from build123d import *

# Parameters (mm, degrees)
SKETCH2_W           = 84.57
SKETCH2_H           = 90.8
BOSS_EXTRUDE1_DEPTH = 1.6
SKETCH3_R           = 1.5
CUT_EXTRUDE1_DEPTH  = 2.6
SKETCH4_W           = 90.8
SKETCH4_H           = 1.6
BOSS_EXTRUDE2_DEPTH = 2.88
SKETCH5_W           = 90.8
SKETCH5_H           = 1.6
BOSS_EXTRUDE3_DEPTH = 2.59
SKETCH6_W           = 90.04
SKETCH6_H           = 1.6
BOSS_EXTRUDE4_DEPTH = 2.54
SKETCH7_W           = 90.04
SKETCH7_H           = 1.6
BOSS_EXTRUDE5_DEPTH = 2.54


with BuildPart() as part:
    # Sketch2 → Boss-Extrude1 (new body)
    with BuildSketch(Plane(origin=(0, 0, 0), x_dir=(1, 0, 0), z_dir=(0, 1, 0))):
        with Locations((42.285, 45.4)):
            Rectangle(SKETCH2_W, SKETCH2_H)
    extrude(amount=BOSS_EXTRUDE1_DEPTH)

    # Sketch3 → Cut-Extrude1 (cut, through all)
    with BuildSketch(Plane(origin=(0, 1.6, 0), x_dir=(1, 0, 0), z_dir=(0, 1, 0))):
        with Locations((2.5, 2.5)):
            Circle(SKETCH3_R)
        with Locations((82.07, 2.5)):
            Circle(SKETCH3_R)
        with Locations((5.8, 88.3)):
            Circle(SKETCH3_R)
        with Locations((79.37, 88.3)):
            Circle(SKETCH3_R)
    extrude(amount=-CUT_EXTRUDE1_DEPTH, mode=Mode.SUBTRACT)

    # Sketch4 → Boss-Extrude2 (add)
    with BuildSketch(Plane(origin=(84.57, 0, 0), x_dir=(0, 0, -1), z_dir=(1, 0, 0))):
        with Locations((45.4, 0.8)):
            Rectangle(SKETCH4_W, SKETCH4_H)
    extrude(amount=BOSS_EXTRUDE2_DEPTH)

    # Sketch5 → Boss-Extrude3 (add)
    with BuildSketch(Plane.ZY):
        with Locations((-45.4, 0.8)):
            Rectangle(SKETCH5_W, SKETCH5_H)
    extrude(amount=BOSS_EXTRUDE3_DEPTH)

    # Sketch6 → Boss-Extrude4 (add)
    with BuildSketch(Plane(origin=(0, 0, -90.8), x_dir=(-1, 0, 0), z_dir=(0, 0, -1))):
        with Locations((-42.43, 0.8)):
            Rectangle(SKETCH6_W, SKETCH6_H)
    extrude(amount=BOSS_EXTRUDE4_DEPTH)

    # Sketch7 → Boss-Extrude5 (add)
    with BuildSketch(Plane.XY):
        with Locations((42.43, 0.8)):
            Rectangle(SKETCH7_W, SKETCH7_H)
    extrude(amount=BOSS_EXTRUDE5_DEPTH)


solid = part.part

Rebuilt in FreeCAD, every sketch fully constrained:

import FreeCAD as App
import Part
import Sketcher
from FreeCAD import Vector
Q = App.Units.Quantity


def add_polygon(sketch, points):
    """Adds a closed chain of lines whose ends are joined by coincident constraints."""
    first, n = sketch.GeometryCount, len(points)
    for a, b in zip(points, points[1:] + points[:1]):
        sketch.addGeometry(Part.LineSegment(App.Vector(*a, 0), App.Vector(*b, 0)), False)
    for i in range(n):
        sketch.addConstraint(Sketcher.Constraint("Coincident", first + i, 2, first + (i + 1) % n, 1))

doc = App.newDocument("Part")
body = doc.addObject("PartDesign::Body", "Body")

# Sketch on XZ plane
sketch1 = body.newObject("Sketcher::SketchObject", "Sketch")
sketch1.AttachmentSupport = (doc.getObject("XZ_Plane"), [""])
sketch1.MapMode = "FlatFace"
add_polygon(sketch1, [(0, -91), (0, 0), (85, 0), (85, -91)])  # lines 0-3
sketch1.addConstraint([
    Sketcher.Constraint("Vertical", 0),
    Sketcher.Constraint("Horizontal", 1),
    Sketcher.Constraint("Vertical", 2),
    Sketcher.Constraint("Horizontal", 3),
    Sketcher.Constraint("Coincident", 0, 2, -1, 1),
    Sketcher.Constraint("DistanceY", 0, 1, 0, 2, Q("90.8 mm")),
    Sketcher.Constraint("DistanceX", 1, 1, 1, 2, Q("84.57 mm")),
])
pad1 = body.newObject("PartDesign::Pad", "Pad")
pad1.Profile = sketch1
pad1.Length = 1.6
pad1.Reversed = True

# Sketch on XZ plane
sketch2 = body.newObject("Sketcher::SketchObject", "Sketch001")
sketch2.AttachmentSupport = (doc.getObject("XZ_Plane"), [""])
sketch2.MapMode = "FlatFace"
sketch2.AttachmentOffset = App.Placement(Vector(0, 0, -1.6), App.Rotation())
sketch2.addGeometry([
    Part.Circle(Vector(2.5, -2.5, 0), Vector(0, 0, 1), 1.5),
    Part.Circle(Vector(82.1, -2.5, 0), Vector(0, 0, 1), 1.5),
    Part.Circle(Vector(5.8, -88.3, 0), Vector(0, 0, 1), 1.5),
    Part.Circle(Vector(79.4, -88.3, 0), Vector(0, 0, 1), 1.5),
], False)
sketch2.addConstraint([
    Sketcher.Constraint("Equal", 0, 1),
    Sketcher.Constraint("Equal", 1, 2),
    Sketcher.Constraint("Equal", 2, 3),
    Sketcher.Constraint("Horizontal", 0, 3, 1, 3),
    Sketcher.Constraint("Horizontal", 2, 3, 3, 3),
    Sketcher.Constraint("Diameter", 0, Q("3 mm")),
    Sketcher.Constraint("DistanceX", -1, 1, 0, 3, Q("2.5 mm")),
    Sketcher.Constraint("DistanceY", 0, 3, -1, 1, Q("2.5 mm")),
    Sketcher.Constraint("DistanceX", -1, 1, 2, 3, Q("5.8 mm")),
    Sketcher.Constraint("DistanceY", 2, 3, -1, 1, Q("88.3 mm")),
    Sketcher.Constraint("DistanceX", 3, 3, 1, 3, Q("2.7 mm")),
    Sketcher.Constraint("DistanceX", -1, 1, 1, 3, Q("82.07 mm")),
])
pocket1 = body.newObject("PartDesign::Pocket", "Pocket")
pocket1.Profile = sketch2
pocket1.Type = "ThroughAll"
pocket1.Reversed = True

# Sketch on YZ plane
sketch3 = body.newObject("Sketcher::SketchObject", "Sketch002")
sketch3.AttachmentSupport = (doc.getObject("YZ_Plane"), [""])
sketch3.MapMode = "FlatFace"
sketch3.AttachmentOffset = App.Placement(Vector(0, 0, 84.57), App.Rotation())
add_polygon(sketch3, [(1.6, 0), (0, 0), (0, -90.8), (1.6, -90.8)])  # lines 0-3
sketch3.addConstraint([
    Sketcher.Constraint("Horizontal", 0),
    Sketcher.Constraint("Vertical", 1),
    Sketcher.Constraint("Horizontal", 2),
    Sketcher.Constraint("Vertical", 3),
    Sketcher.Constraint("Coincident", 0, 2, -1, 1),
    Sketcher.Constraint("DistanceX", 0, 2, 0, 1, Q("1.6 mm")),
    Sketcher.Constraint("DistanceY", 1, 2, 1, 1, Q("90.8 mm")),
])
pad2 = body.newObject("PartDesign::Pad", "Pad001")
pad2.Profile = sketch3
pad2.Length = 2.88

# Sketch on YZ plane
sketch4 = body.newObject("Sketcher::SketchObject", "Sketch003")
sketch4.AttachmentSupport = (doc.getObject("YZ_Plane"), [""])
sketch4.MapMode = "FlatFace"
add_polygon(sketch4, [(1.6, -90.8), (0, -90.8), (0, 0), (1.6, 0)])  # lines 0-3
sketch4.addConstraint([
    Sketcher.Constraint("Horizontal", 0),
    Sketcher.Constraint("Vertical", 1),
    Sketcher.Constraint("Horizontal", 2),
    Sketcher.Constraint("Vertical", 3),
    Sketcher.Constraint("Coincident", 1, 2, -1, 1),
    Sketcher.Constraint("DistanceX", 0, 2, 0, 1, Q("1.6 mm")),
    Sketcher.Constraint("DistanceY", 1, 1, 1, 2, Q("90.8 mm")),
])
pad3 = body.newObject("PartDesign::Pad", "Pad002")
pad3.Profile = sketch4
pad3.Length = 2.59
pad3.Reversed = True

# Sketch on XY plane
sketch5 = body.newObject("Sketcher::SketchObject", "Sketch004")
sketch5.AttachmentSupport = (doc.getObject("XY_Plane"), [""])
sketch5.MapMode = "FlatFace"
sketch5.AttachmentOffset = App.Placement(Vector(0, 0, -90.8), App.Rotation())
add_polygon(sketch5, [(87.5, 1.6), (87.5, 0), (-2.6, 0), (-2.6, 1.6)])  # lines 0-3
sketch5.addConstraint([
    Sketcher.Constraint("Vertical", 0),
    Sketcher.Constraint("Horizontal", 1),
    Sketcher.Constraint("Vertical", 2),
    Sketcher.Constraint("Horizontal", 3),
    Sketcher.Constraint("PointOnObject", 0, 2, -1),
    Sketcher.Constraint("DistanceY", 0, 2, 0, 1, Q("1.6 mm")),
    Sketcher.Constraint("DistanceX", 1, 2, 1, 1, Q("90.04 mm")),
    Sketcher.Constraint("DistanceX", -1, 1, 0, 2, Q("87.45 mm")),
])
pad4 = body.newObject("PartDesign::Pad", "Pad003")
pad4.Profile = sketch5
pad4.Length = 2.54
pad4.Reversed = True

# Sketch on XY plane
sketch6 = body.newObject("Sketcher::SketchObject", "Sketch005")
sketch6.AttachmentSupport = (doc.getObject("XY_Plane"), [""])
sketch6.MapMode = "FlatFace"
add_polygon(sketch6, [(-2.6, 1.6), (-2.6, 0), (87.5, 0), (87.5, 1.6)])  # lines 0-3
sketch6.addConstraint([
    Sketcher.Constraint("Vertical", 0),
    Sketcher.Constraint("Horizontal", 1),
    Sketcher.Constraint("Vertical", 2),
    Sketcher.Constraint("Horizontal", 3),
    Sketcher.Constraint("PointOnObject", 0, 2, -1),
    Sketcher.Constraint("DistanceY", 0, 2, 0, 1, Q("1.6 mm")),
    Sketcher.Constraint("DistanceX", 1, 1, 1, 2, Q("90.04 mm")),
    Sketcher.Constraint("DistanceX", 0, 2, -1, 1, Q("2.59 mm")),
])
pad5 = body.newObject("PartDesign::Pad", "Pad004")
pad5.Profile = sketch6
pad5.Length = 2.54

doc.recompute()
